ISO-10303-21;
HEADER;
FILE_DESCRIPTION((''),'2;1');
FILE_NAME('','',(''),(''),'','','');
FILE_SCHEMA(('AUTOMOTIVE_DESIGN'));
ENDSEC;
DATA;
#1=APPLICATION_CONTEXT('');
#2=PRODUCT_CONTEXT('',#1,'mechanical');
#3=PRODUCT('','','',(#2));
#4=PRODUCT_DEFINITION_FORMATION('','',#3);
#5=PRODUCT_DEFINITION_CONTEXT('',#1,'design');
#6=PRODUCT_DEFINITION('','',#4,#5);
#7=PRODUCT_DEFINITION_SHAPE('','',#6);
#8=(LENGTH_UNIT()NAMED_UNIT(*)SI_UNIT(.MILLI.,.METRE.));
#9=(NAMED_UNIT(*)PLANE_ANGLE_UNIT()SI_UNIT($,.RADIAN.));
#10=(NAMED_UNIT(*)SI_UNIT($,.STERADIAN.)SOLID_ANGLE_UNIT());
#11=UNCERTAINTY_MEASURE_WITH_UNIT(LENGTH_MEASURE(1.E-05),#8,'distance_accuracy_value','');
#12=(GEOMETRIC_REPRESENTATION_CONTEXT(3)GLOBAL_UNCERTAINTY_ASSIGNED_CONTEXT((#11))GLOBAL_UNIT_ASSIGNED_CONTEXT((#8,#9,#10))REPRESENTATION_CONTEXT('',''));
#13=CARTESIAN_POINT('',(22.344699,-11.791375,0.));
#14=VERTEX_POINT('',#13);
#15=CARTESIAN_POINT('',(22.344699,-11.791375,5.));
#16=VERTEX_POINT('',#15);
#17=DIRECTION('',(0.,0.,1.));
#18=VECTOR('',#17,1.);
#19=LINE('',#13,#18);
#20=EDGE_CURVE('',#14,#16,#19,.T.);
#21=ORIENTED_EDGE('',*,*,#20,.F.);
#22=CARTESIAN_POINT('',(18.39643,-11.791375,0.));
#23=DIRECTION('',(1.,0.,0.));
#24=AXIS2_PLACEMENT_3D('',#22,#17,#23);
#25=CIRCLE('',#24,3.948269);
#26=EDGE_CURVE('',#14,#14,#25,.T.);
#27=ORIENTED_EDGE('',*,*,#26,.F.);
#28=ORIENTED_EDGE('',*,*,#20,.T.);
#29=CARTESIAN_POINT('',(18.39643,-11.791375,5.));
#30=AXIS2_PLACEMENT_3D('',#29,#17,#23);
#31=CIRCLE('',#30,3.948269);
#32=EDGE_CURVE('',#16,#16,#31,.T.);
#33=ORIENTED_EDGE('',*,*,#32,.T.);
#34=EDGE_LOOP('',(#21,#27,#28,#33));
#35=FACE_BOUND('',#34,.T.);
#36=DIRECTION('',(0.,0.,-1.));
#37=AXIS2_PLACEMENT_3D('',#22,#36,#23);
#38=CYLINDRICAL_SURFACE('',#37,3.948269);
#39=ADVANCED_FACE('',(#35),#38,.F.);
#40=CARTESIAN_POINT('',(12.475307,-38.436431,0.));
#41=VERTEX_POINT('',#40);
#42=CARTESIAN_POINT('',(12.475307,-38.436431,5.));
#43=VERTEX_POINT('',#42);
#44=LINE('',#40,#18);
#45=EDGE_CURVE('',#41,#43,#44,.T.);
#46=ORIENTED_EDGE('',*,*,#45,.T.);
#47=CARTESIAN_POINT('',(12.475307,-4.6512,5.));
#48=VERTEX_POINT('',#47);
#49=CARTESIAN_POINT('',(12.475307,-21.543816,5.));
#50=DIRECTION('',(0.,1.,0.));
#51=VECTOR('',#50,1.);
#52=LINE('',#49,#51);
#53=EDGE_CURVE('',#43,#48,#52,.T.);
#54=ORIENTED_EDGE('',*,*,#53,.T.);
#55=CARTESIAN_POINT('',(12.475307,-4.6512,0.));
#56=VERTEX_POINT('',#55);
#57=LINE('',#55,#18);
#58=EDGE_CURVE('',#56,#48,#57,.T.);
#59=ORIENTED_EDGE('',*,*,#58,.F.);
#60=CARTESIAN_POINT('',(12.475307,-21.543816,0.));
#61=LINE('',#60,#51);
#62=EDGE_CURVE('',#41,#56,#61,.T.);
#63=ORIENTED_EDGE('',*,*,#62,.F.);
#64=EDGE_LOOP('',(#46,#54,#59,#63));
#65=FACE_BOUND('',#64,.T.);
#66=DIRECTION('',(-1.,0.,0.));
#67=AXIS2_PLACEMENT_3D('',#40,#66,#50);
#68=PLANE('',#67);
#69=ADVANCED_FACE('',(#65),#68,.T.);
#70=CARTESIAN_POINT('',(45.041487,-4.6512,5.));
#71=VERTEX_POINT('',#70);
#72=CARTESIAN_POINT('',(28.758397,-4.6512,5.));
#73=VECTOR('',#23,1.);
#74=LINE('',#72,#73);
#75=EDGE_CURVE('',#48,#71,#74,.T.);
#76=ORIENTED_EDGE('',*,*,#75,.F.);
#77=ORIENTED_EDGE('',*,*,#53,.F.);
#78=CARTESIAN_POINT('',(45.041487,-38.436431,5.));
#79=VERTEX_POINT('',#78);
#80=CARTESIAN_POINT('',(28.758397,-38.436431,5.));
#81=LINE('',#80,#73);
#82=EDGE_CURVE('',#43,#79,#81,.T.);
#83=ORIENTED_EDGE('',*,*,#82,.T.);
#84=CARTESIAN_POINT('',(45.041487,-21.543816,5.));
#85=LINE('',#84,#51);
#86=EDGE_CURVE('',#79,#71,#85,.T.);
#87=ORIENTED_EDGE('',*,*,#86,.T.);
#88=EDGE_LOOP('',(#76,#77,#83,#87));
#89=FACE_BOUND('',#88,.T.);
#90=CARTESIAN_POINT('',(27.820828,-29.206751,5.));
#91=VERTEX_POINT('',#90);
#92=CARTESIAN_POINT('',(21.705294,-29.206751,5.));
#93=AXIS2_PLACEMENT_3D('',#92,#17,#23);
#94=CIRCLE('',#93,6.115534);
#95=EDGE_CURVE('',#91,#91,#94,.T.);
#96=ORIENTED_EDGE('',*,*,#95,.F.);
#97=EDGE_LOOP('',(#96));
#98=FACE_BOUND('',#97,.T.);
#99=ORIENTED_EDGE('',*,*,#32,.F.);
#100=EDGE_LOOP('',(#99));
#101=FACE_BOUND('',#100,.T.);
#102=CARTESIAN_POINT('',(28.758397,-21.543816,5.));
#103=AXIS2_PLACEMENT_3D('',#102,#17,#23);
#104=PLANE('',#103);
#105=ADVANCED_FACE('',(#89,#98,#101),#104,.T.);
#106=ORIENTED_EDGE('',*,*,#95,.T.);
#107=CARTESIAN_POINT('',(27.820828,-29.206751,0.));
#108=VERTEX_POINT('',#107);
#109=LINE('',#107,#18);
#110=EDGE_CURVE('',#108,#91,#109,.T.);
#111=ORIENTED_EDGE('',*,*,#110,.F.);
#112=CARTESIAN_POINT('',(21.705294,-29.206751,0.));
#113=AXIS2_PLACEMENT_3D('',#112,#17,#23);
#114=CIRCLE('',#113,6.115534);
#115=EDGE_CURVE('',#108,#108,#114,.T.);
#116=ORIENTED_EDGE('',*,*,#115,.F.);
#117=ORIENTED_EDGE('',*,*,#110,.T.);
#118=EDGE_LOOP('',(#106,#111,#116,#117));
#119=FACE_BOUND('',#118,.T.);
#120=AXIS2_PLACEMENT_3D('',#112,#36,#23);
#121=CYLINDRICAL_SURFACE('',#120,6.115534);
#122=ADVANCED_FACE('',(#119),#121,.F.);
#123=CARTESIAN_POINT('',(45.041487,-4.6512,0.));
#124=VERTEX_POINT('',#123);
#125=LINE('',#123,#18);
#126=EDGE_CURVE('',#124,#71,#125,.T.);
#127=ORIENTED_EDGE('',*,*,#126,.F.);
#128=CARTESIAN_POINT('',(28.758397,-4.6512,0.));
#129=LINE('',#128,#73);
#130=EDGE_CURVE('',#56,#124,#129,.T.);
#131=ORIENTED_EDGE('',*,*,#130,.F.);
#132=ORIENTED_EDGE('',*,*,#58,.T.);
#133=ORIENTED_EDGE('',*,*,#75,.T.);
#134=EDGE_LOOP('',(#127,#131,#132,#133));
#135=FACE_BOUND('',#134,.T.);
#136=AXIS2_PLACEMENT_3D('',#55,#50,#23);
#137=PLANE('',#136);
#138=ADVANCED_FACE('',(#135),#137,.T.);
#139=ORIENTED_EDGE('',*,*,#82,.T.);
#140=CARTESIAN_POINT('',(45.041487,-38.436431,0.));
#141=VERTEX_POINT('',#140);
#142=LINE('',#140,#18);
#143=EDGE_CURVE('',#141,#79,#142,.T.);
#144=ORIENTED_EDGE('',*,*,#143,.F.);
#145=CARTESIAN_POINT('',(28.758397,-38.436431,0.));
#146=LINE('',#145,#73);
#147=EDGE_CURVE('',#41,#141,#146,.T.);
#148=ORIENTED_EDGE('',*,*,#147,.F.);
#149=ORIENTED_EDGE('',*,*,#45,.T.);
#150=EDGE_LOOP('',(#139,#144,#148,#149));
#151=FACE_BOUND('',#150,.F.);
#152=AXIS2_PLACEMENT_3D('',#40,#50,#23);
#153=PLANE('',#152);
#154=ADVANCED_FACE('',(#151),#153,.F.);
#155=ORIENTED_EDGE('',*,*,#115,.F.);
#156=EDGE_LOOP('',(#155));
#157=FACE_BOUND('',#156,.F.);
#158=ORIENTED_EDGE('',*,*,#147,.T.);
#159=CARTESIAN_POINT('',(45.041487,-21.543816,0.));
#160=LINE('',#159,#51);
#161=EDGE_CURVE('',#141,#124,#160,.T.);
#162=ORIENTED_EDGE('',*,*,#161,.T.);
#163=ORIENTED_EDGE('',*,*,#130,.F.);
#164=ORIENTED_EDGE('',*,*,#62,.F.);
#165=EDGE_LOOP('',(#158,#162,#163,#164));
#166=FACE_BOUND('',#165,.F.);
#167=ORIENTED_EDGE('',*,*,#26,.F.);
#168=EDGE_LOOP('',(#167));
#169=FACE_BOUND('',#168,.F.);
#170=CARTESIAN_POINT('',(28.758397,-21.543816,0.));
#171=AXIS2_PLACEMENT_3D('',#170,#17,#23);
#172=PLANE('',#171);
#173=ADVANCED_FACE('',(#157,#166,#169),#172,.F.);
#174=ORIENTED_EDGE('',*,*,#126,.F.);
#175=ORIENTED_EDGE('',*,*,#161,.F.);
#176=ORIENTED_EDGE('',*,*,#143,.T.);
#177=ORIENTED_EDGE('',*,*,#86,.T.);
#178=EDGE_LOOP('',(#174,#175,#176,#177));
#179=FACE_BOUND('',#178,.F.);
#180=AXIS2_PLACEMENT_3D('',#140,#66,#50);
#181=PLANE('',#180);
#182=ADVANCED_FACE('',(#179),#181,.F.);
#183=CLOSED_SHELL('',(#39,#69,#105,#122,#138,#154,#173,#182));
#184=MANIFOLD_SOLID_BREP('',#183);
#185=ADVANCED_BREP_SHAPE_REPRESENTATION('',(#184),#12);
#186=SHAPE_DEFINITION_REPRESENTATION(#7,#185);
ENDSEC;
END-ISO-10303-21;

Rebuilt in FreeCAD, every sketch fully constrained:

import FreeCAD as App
import Part
import Sketcher
from FreeCAD import Vector


def add_polygon(sketch, points):
    """Adds a closed chain of lines whose ends are joined by coincident constraints."""
    first, n = sketch.GeometryCount, len(points)
    for a, b in zip(points, points[1:] + points[:1]):
        sketch.addGeometry(Part.LineSegment(App.Vector(*a, 0), App.Vector(*b, 0)), False)
    for i in range(n):
        sketch.addConstraint(Sketcher.Constraint("Coincident", first + i, 2, first + (i + 1) % n, 1))

doc = App.newDocument("Part")
body = doc.addObject("PartDesign::Body", "Body")

# Sketch on XY plane
sketch1 = body.newObject("Sketcher::SketchObject", "Sketch")
sketch1.AttachmentSupport = (doc.getObject("XY_Plane"), [""])
sketch1.MapMode = "FlatFace"
add_polygon(sketch1, [(12.475307, -4.6512), (12.475307, -38.436431), (45.041487, -38.436431), (45.041487, -4.6512)])  # lines 0-3
sketch1.addGeometry(Part.Circle(Vector(21.705294, -29.206751, 0), Vector(0, 0, 1), 6.115534), False)  # 4
sketch1.addGeometry(Part.Circle(Vector(18.39643, -11.791375, 0), Vector(0, 0, 1), 3.948269), False)  # 5
sketch1.addConstraint(Sketcher.Constraint("Vertical", 0))
sketch1.addConstraint(Sketcher.Constraint("Horizontal", 1))
sketch1.addConstraint(Sketcher.Constraint("Vertical", 2))
sketch1.addConstraint(Sketcher.Constraint("Horizontal", 3))
sketch1.addConstraint(Sketcher.Constraint("Diameter", 4, 12.231068))
sketch1.addConstraint(Sketcher.Constraint("Diameter", 5, 7.896538))
sketch1.addConstraint(Sketcher.Constraint("DistanceX", 1, 1, 1, 2, 32.56618))
sketch1.addConstraint(Sketcher.Constraint("DistanceY", 0, 2, 0, 1, 33.785231))
sketch1.addConstraint(Sketcher.Constraint("DistanceY", 2, 2, -1, 1, 4.6512))
sketch1.addConstraint(Sketcher.Constraint("DistanceY", 4, 3, -1, 1, 29.206751))
sketch1.addConstraint(Sketcher.Constraint("DistanceX", -1, 1, 5, 3, 18.39643))
sketch1.addConstraint(Sketcher.Constraint("DistanceX", -1, 1, 4, 3, 21.705294))
sketch1.addConstraint(Sketcher.Constraint("DistanceY", 5, 3, -1, 1, 11.791375))
sketch1.addConstraint(Sketcher.Constraint("DistanceX", -1, 1, 0, 2, 12.475307))
pad1 = body.newObject("PartDesign::Pad", "Pad")
pad1.Profile = sketch1
pad1.Length = 5

doc.recompute()
